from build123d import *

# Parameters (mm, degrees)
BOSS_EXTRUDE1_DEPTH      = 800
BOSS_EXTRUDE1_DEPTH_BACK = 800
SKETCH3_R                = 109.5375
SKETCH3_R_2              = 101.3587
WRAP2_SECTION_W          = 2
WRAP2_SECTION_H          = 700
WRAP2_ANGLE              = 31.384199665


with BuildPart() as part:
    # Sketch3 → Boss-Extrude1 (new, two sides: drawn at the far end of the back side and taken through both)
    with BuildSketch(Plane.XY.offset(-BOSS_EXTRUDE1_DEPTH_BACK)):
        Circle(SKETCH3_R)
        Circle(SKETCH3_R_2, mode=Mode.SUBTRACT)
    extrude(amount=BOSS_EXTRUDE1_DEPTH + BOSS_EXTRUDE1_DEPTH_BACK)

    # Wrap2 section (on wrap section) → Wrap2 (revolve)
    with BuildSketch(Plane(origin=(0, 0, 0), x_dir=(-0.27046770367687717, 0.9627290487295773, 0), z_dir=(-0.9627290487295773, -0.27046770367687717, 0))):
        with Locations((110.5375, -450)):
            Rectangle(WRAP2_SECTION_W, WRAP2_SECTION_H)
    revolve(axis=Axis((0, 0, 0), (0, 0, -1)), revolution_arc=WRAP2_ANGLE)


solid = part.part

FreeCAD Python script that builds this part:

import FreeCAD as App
import Part
import Sketcher

V = App.Vector
Q = App.Units.Quantity

doc = App.newDocument("Part")
body = doc.addObject("PartDesign::Body", "Body")

sketch1 = body.newObject("Sketcher::SketchObject", "Sketch")
sketch1.AttachmentSupport = (doc.getObject("XY_Plane"), [""])
sketch1.MapMode = "FlatFace"
sketch1.addGeometry([
    Part.Circle(V(0, 0, 0), V(0, 0, 1), 109.5375),
    Part.Circle(V(0, 0, 0), V(0, 0, 1), 101.3587),
], False)
sketch1.addConstraint([
    Sketcher.Constraint("Coincident", 0, 3, -1, 1),
    Sketcher.Constraint("Coincident", 1, 3, -1, 1),
    Sketcher.Constraint("Diameter", 0, Q("219.075 mm")),
    Sketcher.Constraint("Diameter", 1, Q("202.7174 mm")),
])
pad1 = body.newObject("PartDesign::Pad", "Pad")
pad1.Profile = sketch1
pad1.Type = "TwoLengths"
pad1.Length = 800
pad1.Length2 = 800

sketch2 = body.newObject("Sketcher::SketchObject", "Sketch001")
sketch2.Placement = App.Placement(V(0, 0, 0), App.Rotation(V(-0.270467704, 0.962729049, 0), V(0, 0, -1.000000001), V(-0.962729049, -0.270467704, 0), "ZXY"))
sketch2.addGeometry([
    Part.LineSegment(V(109.5375, -100, 0), V(109.5375, -800.000001, 0)),
    Part.LineSegment(V(109.5375, -800.000001, 0), V(111.5375, -800.000001, 0)),
    Part.LineSegment(V(111.5375, -800.000001, 0), V(111.5375, -100, 0)),
    Part.LineSegment(V(111.5375, -100, 0), V(109.5375, -100, 0)),
], False)
sketch2.addConstraint([
    Sketcher.Constraint("Coincident", 0, 2, 1, 1),
    Sketcher.Constraint("Coincident", 1, 2, 2, 1),
    Sketcher.Constraint("Coincident", 2, 2, 3, 1),
    Sketcher.Constraint("Coincident", 3, 2, 0, 1),
    Sketcher.Constraint("Vertical", 0),
    Sketcher.Constraint("Horizontal", 1),
    Sketcher.Constraint("Vertical", 2),
    Sketcher.Constraint("Horizontal", 3),
    Sketcher.Constraint("DistanceX", 1, 1, 1, 2, Q("2 mm")),
    Sketcher.Constraint("DistanceY", 0, 2, 0, 1, Q("700.000001 mm")),
    Sketcher.Constraint("DistanceY", 0, 2, -1, 1, Q("800.000001 mm")),
    Sketcher.Constraint("DistanceX", -1, 1, 0, 2, Q("109.5375 mm")),
])
revolution = body.newObject("PartDesign::Revolution", "Revolution")
revolution.Profile = sketch2
revolution.ReferenceAxis = (sketch2, ["V_Axis"])
revolution.Angle = 31.3842

doc.recompute()
